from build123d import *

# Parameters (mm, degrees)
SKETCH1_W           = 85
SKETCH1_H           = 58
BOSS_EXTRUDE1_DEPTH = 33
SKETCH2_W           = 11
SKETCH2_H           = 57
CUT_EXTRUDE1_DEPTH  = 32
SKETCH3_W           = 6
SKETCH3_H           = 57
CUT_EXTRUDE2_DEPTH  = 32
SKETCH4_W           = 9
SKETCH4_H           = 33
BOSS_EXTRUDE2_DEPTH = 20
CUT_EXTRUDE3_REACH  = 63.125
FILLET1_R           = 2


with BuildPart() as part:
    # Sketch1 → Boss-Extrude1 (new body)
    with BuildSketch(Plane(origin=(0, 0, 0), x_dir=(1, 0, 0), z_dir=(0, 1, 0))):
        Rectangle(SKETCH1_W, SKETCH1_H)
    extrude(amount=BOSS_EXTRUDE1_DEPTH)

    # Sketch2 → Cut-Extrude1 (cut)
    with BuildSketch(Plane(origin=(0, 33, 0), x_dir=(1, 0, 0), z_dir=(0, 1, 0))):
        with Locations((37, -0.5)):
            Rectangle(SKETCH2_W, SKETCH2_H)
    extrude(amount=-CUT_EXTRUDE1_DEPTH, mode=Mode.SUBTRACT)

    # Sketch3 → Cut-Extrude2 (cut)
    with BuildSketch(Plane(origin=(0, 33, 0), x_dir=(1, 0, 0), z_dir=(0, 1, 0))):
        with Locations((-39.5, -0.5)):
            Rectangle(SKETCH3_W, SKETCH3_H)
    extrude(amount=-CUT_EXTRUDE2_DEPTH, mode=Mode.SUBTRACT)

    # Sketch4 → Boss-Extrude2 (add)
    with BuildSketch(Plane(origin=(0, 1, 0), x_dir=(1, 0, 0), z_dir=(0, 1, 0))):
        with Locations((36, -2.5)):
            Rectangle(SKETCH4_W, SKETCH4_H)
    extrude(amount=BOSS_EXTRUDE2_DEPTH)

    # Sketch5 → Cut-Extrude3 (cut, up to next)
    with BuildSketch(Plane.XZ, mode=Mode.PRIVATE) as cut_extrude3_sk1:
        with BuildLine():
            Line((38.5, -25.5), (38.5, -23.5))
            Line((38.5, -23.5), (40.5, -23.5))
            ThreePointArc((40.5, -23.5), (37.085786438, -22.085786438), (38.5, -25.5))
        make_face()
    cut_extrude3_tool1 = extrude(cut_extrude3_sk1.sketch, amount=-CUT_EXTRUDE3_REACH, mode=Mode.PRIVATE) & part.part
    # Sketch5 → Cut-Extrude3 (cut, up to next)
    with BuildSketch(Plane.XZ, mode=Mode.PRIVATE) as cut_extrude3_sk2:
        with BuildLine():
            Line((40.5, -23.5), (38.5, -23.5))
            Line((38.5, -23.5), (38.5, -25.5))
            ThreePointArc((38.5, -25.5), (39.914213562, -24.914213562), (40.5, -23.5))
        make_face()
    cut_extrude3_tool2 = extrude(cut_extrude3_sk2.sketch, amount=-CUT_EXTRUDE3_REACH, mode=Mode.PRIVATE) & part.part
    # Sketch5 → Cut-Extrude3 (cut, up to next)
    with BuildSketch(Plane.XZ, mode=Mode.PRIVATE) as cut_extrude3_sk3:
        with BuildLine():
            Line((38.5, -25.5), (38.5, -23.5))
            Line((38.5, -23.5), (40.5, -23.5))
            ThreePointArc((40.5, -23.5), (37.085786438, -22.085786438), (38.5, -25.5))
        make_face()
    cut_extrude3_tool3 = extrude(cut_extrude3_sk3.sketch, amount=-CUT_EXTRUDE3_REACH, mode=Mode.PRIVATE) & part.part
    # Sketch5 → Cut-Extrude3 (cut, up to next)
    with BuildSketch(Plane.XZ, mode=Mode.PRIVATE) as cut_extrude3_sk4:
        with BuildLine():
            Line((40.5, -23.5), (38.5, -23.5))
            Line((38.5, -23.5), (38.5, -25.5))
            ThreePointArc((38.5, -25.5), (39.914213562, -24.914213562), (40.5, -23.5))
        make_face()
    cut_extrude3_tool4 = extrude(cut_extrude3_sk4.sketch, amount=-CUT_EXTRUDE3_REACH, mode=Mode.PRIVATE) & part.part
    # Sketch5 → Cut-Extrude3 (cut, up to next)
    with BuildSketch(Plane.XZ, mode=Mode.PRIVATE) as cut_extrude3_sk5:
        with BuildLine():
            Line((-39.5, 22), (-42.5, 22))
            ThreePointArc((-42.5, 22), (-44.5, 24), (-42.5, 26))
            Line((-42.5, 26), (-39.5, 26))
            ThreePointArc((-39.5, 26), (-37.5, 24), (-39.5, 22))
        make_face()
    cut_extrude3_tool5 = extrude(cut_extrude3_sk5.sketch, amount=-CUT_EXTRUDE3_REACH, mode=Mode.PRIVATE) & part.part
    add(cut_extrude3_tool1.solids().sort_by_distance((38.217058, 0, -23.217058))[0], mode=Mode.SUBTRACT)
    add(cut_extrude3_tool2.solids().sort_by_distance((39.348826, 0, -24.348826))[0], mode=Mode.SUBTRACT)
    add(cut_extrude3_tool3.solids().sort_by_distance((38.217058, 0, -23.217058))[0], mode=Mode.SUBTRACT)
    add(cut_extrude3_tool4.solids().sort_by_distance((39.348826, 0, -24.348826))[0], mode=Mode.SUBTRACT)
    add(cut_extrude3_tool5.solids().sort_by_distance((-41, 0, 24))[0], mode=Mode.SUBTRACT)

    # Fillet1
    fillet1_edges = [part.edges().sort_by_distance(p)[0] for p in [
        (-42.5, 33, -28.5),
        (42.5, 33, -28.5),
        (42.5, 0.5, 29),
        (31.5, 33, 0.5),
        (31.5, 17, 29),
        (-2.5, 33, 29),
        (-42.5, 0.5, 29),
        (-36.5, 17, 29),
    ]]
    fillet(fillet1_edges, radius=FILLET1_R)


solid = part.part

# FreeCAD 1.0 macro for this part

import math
import FreeCAD as App
import Part
import Sketcher
from FreeCAD import Vector
Q = App.Units.Quantity


def edges_at(feature, points):
    """Names of the edges that pass closest to the given points."""
    edges = feature.Shape.Edges
    near = lambda p: min(range(len(edges)), key=lambda i: edges[i].distToShape(Part.Vertex(*p))[0])
    return sorted({f"Edge{near(p) + 1}" for p in points})

doc = App.newDocument("Part")
body = doc.addObject("PartDesign::Body", "Body")

# Sketch on XZ plane
sketch1 = body.newObject("Sketcher::SketchObject", "Sketch")
sketch1.AttachmentSupport = (doc.getObject("XZ_Plane"), [""])
sketch1.MapMode = "FlatFace"
sketch1.addGeometry([
    Part.LineSegment(Vector(-42.5, -29, 0), Vector(-42.5, 29, 0)),
    Part.LineSegment(Vector(-42.5, 29, 0), Vector(42.5, 29, 0)),
    Part.LineSegment(Vector(42.5, 29, 0), Vector(42.5, -29, 0)),
    Part.LineSegment(Vector(42.5, -29, 0), Vector(-42.5, -29, 0)),
], False)
sketch1.addConstraint([
    Sketcher.Constraint("Coincident", 0, 2, 1, 1),
    Sketcher.Constraint("Coincident", 1, 2, 2, 1),
    Sketcher.Constraint("Coincident", 2, 2, 3, 1),
    Sketcher.Constraint("Coincident", 3, 2, 0, 1),
    Sketcher.Constraint("Vertical", 0),
    Sketcher.Constraint("Horizontal", 1),
    Sketcher.Constraint("Vertical", 2),
    Sketcher.Constraint("Horizontal", 3),
    Sketcher.Constraint("Symmetric", 0, 2, 2, 2, -1, 1),
    Sketcher.Constraint("DistanceX", 1, 1, 1, 2, Q("85 mm")),
    Sketcher.Constraint("DistanceY", 0, 1, 0, 2, Q("58 mm")),
])
pad1 = body.newObject("PartDesign::Pad", "Pad")
pad1.Profile = sketch1
pad1.Length = 33
pad1.Reversed = True

# Sketch on XZ plane
sketch2 = body.newObject("Sketcher::SketchObject", "Sketch001")
sketch2.AttachmentSupport = (doc.getObject("XZ_Plane"), [""])
sketch2.MapMode = "FlatFace"
sketch2.AttachmentOffset = App.Placement(Vector(0, 0, -33), App.Rotation())
sketch2.addGeometry([
    Part.LineSegment(Vector(31.5, -28, 0), Vector(31.5, 29, 0)),
    Part.LineSegment(Vector(31.5, 29, 0), Vector(42.5, 29, 0)),
    Part.LineSegment(Vector(42.5, 29, 0), Vector(42.5, -28, 0)),
    Part.LineSegment(Vector(42.5, -28, 0), Vector(31.5, -28, 0)),
], False)
sketch2.addConstraint([
    Sketcher.Constraint("Coincident", 0, 2, 1, 1),
    Sketcher.Constraint("Coincident", 1, 2, 2, 1),
    Sketcher.Constraint("Coincident", 2, 2, 3, 1),
    Sketcher.Constraint("Coincident", 3, 2, 0, 1),
    Sketcher.Constraint("Vertical", 0),
    Sketcher.Constraint("Horizontal", 1),
    Sketcher.Constraint("Vertical", 2),
    Sketcher.Constraint("Horizontal", 3),
    Sketcher.Constraint("DistanceX", 1, 1, 1, 2, Q("11 mm")),
    Sketcher.Constraint("DistanceY", 0, 1, 0, 2, Q("57 mm")),
    Sketcher.Constraint("DistanceY", -1, 1, 0, 2, Q("29 mm")),
    Sketcher.Constraint("DistanceX", -1, 1, 0, 2, Q("31.5 mm")),
])
pocket1 = body.newObject("PartDesign::Pocket", "Pocket")
pocket1.Profile = sketch2
pocket1.Length = 32
pocket1.Reversed = True

# Sketch on XZ plane
sketch3 = body.newObject("Sketcher::SketchObject", "Sketch002")
sketch3.AttachmentSupport = (doc.getObject("XZ_Plane"), [""])
sketch3.MapMode = "FlatFace"
sketch3.AttachmentOffset = App.Placement(Vector(0, 0, -33), App.Rotation())
sketch3.addGeometry([
    Part.LineSegment(Vector(-42.5, -28, 0), Vector(-42.5, 29, 0)),
    Part.LineSegment(Vector(-42.5, 29, 0), Vector(-36.5, 29, 0)),
    Part.LineSegment(Vector(-36.5, 29, 0), Vector(-36.5, -28, 0)),
    Part.LineSegment(Vector(-36.5, -28, 0), Vector(-42.5, -28, 0)),
], False)
sketch3.addConstraint([
    Sketcher.Constraint("Coincident", 0, 2, 1, 1),
    Sketcher.Constraint("Coincident", 1, 2, 2, 1),
    Sketcher.Constraint("Coincident", 2, 2, 3, 1),
    Sketcher.Constraint("Coincident", 3, 2, 0, 1),
    Sketcher.Constraint("Vertical", 0),
    Sketcher.Constraint("Horizontal", 1),
    Sketcher.Constraint("Vertical", 2),
    Sketcher.Constraint("Horizontal", 3),
    Sketcher.Constraint("DistanceX", 1, 1, 1, 2, Q("6 mm")),
    Sketcher.Constraint("DistanceY", 0, 1, 0, 2, Q("57 mm")),
    Sketcher.Constraint("DistanceY", -1, 1, 0, 2, Q("29 mm")),
    Sketcher.Constraint("DistanceX", 0, 2, -1, 1, Q("42.5 mm")),
])
pocket2 = body.newObject("PartDesign::Pocket", "Pocket001")
pocket2.Profile = sketch3
pocket2.Length = 32
pocket2.Reversed = True

# Sketch on XZ plane
sketch4 = body.newObject("Sketcher::SketchObject", "Sketch003")
sketch4.AttachmentSupport = (doc.getObject("XZ_Plane"), [""])
sketch4.MapMode = "FlatFace"
sketch4.AttachmentOffset = App.Placement(Vector(0, 0, -1), App.Rotation())
sketch4.addGeometry([
    Part.LineSegment(Vector(31.5, -14, 0), Vector(31.5, 19, 0)),
    Part.LineSegment(Vector(31.5, 19, 0), Vector(40.5, 19, 0)),
    Part.LineSegment(Vector(40.5, 19, 0), Vector(40.5, -14, 0)),
    Part.LineSegment(Vector(40.5, -14, 0), Vector(31.5, -14, 0)),
], False)
sketch4.addConstraint([
    Sketcher.Constraint("Coincident", 0, 2, 1, 1),
    Sketcher.Constraint("Coincident", 1, 2, 2, 1),
    Sketcher.Constraint("Coincident", 2, 2, 3, 1),
    Sketcher.Constraint("Coincident", 3, 2, 0, 1),
    Sketcher.Constraint("Vertical", 0),
    Sketcher.Constraint("Horizontal", 1),
    Sketcher.Constraint("Vertical", 2),
    Sketcher.Constraint("Horizontal", 3),
    Sketcher.Constraint("DistanceX", 1, 1, 1, 2, Q("9 mm")),
    Sketcher.Constraint("DistanceY", 0, 1, 0, 2, Q("33 mm")),
    Sketcher.Constraint("DistanceY", -1, 1, 0, 2, Q("19 mm")),
    Sketcher.Constraint("DistanceX", -1, 1, 0, 2, Q("31.5 mm")),
])
pad2 = body.newObject("PartDesign::Pad", "Pad001")
pad2.Profile = sketch4
pad2.Length = 20
pad2.Reversed = True

# Sketch on XZ plane
sketch5 = body.newObject("Sketcher::SketchObject", "Sketch004")
sketch5.AttachmentSupport = (doc.getObject("XZ_Plane"), [""])
sketch5.MapMode = "FlatFace"
sketch5.addGeometry([
    Part.LineSegment(Vector(38.5, -25.5, 0), Vector(38.5, -23.5, 0)),
    Part.LineSegment(Vector(38.5, -23.5, 0), Vector(40.5, -23.5, 0)),
    Part.ArcOfCircle(Part.Circle(Vector(38.5, -23.5, 0), Vector(0, 0, 1), 2), math.radians(0), math.radians(270)),
], False)
sketch5.addConstraint([
    Sketcher.Constraint("Coincident", 0, 2, 1, 1),
    Sketcher.Constraint("Coincident", 1, 2, 2, 1),
    Sketcher.Constraint("Coincident", 2, 2, 0, 1),
    Sketcher.Constraint("Vertical", 0),
    Sketcher.Constraint("Horizontal", 1),
    Sketcher.Constraint("Coincident", 0, 2, 2, 3),
    Sketcher.Constraint("Radius", 2, Q("2 mm")),
    Sketcher.Constraint("DistanceX", -1, 1, 2, 3, Q("38.5 mm")),
    Sketcher.Constraint("DistanceY", 2, 3, -1, 1, Q("23.5 mm")),
])
pocket3 = body.newObject("PartDesign::Pocket", "Pocket002")
pocket3.Profile = sketch5
pocket3.Type = "UpToFirst"

# Sketch on XZ plane
sketch6 = body.newObject("Sketcher::SketchObject", "Sketch005")
sketch6.AttachmentSupport = (doc.getObject("XZ_Plane"), [""])
sketch6.MapMode = "FlatFace"
sketch6.addGeometry([
    Part.LineSegment(Vector(40.5, -23.5, 0), Vector(38.5, -23.5, 0)),
    Part.LineSegment(Vector(38.5, -23.5, 0), Vector(38.5, -25.5, 0)),
    Part.ArcOfCircle(Part.Circle(Vector(38.5, -23.5, 0), Vector(0, 0, 1), 2), math.radians(-90), math.radians(0)),
], False)
sketch6.addConstraint([
    Sketcher.Constraint("Coincident", 0, 2, 1, 1),
    Sketcher.Constraint("Coincident", 1, 2, 2, 1),
    Sketcher.Constraint("Coincident", 2, 2, 0, 1),
    Sketcher.Constraint("Horizontal", 0),
    Sketcher.Constraint("Vertical", 1),
    Sketcher.Constraint("Coincident", 0, 2, 2, 3),
    Sketcher.Constraint("Radius", 2, Q("2 mm")),
    Sketcher.Constraint("DistanceX", -1, 1, 2, 3, Q("38.5 mm")),
    Sketcher.Constraint("DistanceY", 2, 3, -1, 1, Q("23.5 mm")),
])
pocket4 = body.newObject("PartDesign::Pocket", "Pocket003")
pocket4.Profile = sketch6
pocket4.Type = "UpToFirst"

# Sketch on XZ plane
sketch7 = body.newObject("Sketcher::SketchObject", "Sketch006")
sketch7.AttachmentSupport = (doc.getObject("XZ_Plane"), [""])
sketch7.MapMode = "FlatFace"
sketch7.addGeometry([
    Part.LineSegment(Vector(38.5, -25.5, 0), Vector(38.5, -23.5, 0)),
    Part.LineSegment(Vector(38.5, -23.5, 0), Vector(40.5, -23.5, 0)),
    Part.ArcOfCircle(Part.Circle(Vector(38.5, -23.5, 0), Vector(0, 0, 1), 2), math.radians(0), math.radians(270)),
], False)
sketch7.addConstraint([
    Sketcher.Constraint("Coincident", 0, 2, 1, 1),
    Sketcher.Constraint("Coincident", 1, 2, 2, 1),
    Sketcher.Constraint("Coincident", 2, 2, 0, 1),
    Sketcher.Constraint("Vertical", 0),
    Sketcher.Constraint("Horizontal", 1),
    Sketcher.Constraint("Coincident", 0, 2, 2, 3),
    Sketcher.Constraint("Radius", 2, Q("2 mm")),
    Sketcher.Constraint("DistanceX", -1, 1, 2, 3, Q("38.5 mm")),
    Sketcher.Constraint("DistanceY", 2, 3, -1, 1, Q("23.5 mm")),
])
pocket5 = body.newObject("PartDesign::Pocket", "Pocket004")
pocket5.Profile = sketch7
pocket5.Length = 1

# Sketch on XZ plane
sketch8 = body.newObject("Sketcher::SketchObject", "Sketch007")
sketch8.AttachmentSupport = (doc.getObject("XZ_Plane"), [""])
sketch8.MapMode = "FlatFace"
sketch8.addGeometry([
    Part.LineSegment(Vector(40.5, -23.5, 0), Vector(38.5, -23.5, 0)),
    Part.LineSegment(Vector(38.5, -23.5, 0), Vector(38.5, -25.5, 0)),
    Part.ArcOfCircle(Part.Circle(Vector(38.5, -23.5, 0), Vector(0, 0, 1), 2), math.radians(-90), math.radians(0)),
], False)
sketch8.addConstraint([
    Sketcher.Constraint("Coincident", 0, 2, 1, 1),
    Sketcher.Constraint("Coincident", 1, 2, 2, 1),
    Sketcher.Constraint("Coincident", 2, 2, 0, 1),
    Sketcher.Constraint("Horizontal", 0),
    Sketcher.Constraint("Vertical", 1),
    Sketcher.Constraint("Coincident", 0, 2, 2, 3),
    Sketcher.Constraint("Radius", 2, Q("2 mm")),
    Sketcher.Constraint("DistanceX", -1, 1, 2, 3, Q("38.5 mm")),
    Sketcher.Constraint("DistanceY", 2, 3, -1, 1, Q("23.5 mm")),
])
pocket6 = body.newObject("PartDesign::Pocket", "Pocket005")
pocket6.Profile = sketch8
pocket6.Length = 1

# Sketch on XZ plane
sketch9 = body.newObject("Sketcher::SketchObject", "Sketch008")
sketch9.AttachmentSupport = (doc.getObject("XZ_Plane"), [""])
sketch9.MapMode = "FlatFace"
sketch9.addGeometry([
    Part.LineSegment(Vector(-42.5, 22, 0), Vector(-39.5, 22, 0)),
    Part.ArcOfCircle(Part.Circle(Vector(-39.5, 24, 0), Vector(0, 0, 1), 2), math.radians(-90), math.radians(90)),
    Part.LineSegment(Vector(-39.5, 26, 0), Vector(-42.5, 26, 0)),
    Part.ArcOfCircle(Part.Circle(Vector(-42.5, 24, 0), Vector(0, 0, 1), 2), math.radians(90), math.radians(270)),
], False)
sketch9.addConstraint([
    Sketcher.Constraint("Tangent", 0, 2, 1, 1),
    Sketcher.Constraint("Tangent", 1, 2, 2, 1),
    Sketcher.Constraint("Tangent", 2, 2, 3, 1),
    Sketcher.Constraint("Tangent", 3, 2, 0, 1),
    Sketcher.Constraint("Horizontal", 0),
    Sketcher.Constraint("Horizontal", 2),
    Sketcher.Constraint("Radius", 1, Q("2 mm")),
    Sketcher.Constraint("DistanceX", 0, 1, 0, 2, Q("3 mm")),
    Sketcher.Constraint("DistanceY", -1, 1, 1, 3, Q("24 mm")),
    Sketcher.Constraint("DistanceX", 1, 3, -1, 1, Q("39.5 mm")),
])
pocket7 = body.newObject("PartDesign::Pocket", "Pocket006")
pocket7.Profile = sketch9
pocket7.Type = "UpToFirst"
doc.recompute()

fillet = body.newObject("PartDesign::Fillet", "Fillet")
fillet.Base = (pocket7, edges_at(pocket7, [
    (-42.5, 33, -28.5),
    (42.5, 33, -28.5),
    (42.5, 0.5, 29),
    (31.5, 33, 0.5),
    (31.5, 17, 29),
    (-2.5, 33, 29),
    (-42.5, 0.5, 29),
    (-36.5, 17, 29),
]))
fillet.Radius = 2

doc.recompute()
